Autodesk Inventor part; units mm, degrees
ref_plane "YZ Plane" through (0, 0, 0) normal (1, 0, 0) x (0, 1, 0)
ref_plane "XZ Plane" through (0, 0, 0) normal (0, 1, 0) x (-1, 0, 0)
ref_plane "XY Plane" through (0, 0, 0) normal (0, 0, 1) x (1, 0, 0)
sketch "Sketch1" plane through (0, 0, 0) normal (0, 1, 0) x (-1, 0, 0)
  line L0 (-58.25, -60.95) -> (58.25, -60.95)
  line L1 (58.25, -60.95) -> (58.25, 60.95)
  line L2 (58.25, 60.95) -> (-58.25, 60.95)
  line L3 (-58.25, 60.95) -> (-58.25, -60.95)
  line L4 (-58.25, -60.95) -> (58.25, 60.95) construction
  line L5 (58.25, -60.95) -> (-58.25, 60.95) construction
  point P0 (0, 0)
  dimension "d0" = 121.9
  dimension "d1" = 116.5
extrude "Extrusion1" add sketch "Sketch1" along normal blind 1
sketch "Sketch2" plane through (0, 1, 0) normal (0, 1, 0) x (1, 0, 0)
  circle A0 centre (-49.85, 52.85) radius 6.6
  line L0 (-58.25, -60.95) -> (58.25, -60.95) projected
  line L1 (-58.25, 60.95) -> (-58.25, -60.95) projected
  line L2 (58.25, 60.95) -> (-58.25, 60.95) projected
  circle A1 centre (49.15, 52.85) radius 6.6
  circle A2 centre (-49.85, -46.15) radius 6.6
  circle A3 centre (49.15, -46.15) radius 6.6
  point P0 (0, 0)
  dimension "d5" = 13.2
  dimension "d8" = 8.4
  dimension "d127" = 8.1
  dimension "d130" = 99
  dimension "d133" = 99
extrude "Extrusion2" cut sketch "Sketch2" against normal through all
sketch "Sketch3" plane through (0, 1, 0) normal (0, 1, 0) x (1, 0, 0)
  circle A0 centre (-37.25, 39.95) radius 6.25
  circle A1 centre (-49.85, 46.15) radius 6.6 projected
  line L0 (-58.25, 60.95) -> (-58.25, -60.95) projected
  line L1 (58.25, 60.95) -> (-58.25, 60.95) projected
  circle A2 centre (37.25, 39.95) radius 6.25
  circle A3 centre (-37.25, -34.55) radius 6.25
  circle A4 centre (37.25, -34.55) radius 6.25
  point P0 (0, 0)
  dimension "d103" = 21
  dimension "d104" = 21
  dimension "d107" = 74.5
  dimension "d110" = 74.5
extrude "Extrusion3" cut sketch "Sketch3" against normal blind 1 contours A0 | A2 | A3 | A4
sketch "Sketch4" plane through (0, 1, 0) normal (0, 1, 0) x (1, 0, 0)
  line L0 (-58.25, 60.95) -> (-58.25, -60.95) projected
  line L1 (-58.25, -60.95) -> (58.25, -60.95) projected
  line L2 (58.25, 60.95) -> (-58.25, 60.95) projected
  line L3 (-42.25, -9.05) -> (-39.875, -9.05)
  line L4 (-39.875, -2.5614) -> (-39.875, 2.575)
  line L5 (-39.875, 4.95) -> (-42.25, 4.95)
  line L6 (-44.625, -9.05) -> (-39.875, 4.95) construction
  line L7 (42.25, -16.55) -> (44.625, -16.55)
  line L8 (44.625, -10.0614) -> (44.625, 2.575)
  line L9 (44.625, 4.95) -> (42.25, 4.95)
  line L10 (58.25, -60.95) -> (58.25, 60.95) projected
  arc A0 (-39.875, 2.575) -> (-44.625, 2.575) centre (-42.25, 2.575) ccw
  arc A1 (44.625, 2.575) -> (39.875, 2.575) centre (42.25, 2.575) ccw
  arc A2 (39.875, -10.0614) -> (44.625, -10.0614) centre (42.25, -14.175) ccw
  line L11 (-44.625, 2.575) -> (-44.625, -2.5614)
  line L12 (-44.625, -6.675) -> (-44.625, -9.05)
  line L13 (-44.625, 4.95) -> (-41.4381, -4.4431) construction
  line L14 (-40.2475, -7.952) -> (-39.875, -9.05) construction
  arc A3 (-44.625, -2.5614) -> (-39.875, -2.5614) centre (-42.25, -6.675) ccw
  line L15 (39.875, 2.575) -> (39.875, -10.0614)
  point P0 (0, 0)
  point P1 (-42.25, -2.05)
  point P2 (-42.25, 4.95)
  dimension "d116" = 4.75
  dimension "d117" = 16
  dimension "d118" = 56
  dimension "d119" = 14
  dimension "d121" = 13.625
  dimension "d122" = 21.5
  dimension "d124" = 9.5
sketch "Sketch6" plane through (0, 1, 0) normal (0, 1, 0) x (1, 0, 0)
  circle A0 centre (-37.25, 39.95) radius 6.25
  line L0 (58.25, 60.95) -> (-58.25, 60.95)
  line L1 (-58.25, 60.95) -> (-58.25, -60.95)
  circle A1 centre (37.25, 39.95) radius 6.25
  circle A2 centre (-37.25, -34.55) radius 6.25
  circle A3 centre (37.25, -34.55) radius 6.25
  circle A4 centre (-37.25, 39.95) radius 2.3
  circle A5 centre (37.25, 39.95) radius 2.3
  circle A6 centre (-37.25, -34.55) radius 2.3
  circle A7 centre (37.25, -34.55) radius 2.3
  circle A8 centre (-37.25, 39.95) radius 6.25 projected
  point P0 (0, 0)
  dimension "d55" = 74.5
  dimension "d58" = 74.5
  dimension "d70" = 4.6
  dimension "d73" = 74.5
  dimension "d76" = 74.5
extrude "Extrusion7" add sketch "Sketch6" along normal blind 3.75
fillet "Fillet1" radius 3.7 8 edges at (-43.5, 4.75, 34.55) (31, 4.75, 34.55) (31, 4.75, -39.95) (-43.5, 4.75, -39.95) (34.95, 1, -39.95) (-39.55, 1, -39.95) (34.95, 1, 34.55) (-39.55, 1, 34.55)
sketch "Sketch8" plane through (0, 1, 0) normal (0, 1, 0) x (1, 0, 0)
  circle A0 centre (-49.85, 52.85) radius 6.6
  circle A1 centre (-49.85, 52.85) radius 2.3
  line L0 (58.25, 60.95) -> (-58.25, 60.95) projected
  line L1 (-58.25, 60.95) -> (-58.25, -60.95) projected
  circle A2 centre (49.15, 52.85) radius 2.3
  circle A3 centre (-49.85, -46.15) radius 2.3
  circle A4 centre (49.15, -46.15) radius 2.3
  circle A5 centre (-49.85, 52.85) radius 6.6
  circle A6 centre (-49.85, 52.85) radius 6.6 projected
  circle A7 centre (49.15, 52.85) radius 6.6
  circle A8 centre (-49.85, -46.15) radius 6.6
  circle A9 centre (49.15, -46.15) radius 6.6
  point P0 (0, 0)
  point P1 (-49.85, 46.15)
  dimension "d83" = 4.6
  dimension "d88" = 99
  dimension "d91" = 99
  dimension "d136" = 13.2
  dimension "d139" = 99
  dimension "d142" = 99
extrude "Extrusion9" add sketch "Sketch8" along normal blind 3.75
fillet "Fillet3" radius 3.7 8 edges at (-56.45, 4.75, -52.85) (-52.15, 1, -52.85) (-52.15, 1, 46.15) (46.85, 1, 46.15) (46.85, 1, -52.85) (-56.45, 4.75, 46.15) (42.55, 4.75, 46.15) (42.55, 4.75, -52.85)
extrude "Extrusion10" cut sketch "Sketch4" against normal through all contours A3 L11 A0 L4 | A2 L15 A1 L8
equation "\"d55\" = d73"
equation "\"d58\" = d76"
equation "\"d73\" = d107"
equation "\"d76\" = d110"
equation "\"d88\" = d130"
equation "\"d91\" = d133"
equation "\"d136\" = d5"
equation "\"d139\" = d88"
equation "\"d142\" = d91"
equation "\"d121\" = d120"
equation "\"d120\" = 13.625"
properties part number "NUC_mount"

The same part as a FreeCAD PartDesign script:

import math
import FreeCAD as App
import Part
import Sketcher
Q = App.Units.Quantity


def edges_at(feature, points):
    """Names of the edges that pass closest to the given points."""
    edges = feature.Shape.Edges
    near = lambda p: min(range(len(edges)), key=lambda i: edges[i].distToShape(Part.Vertex(*p))[0])
    return sorted({f"Edge{near(p) + 1}" for p in points})


def add_polygon(sketch, points):
    """Adds a closed chain of lines whose ends are joined by coincident constraints."""
    first, n = sketch.GeometryCount, len(points)
    for a, b in zip(points, points[1:] + points[:1]):
        sketch.addGeometry(Part.LineSegment(App.Vector(*a, 0), App.Vector(*b, 0)), False)
    for i in range(n):
        sketch.addConstraint(Sketcher.Constraint("Coincident", first + i, 2, first + (i + 1) % n, 1))

doc = App.newDocument("Part")
body = doc.addObject("PartDesign::Body", "Body")
body.AllowCompound = True

# Sketch on XZ plane
sketch1 = body.newObject("Sketcher::SketchObject", "Sketch")
sketch1.AttachmentSupport = (doc.getObject("XZ_Plane"), [""])
sketch1.MapMode = "FlatFace"
add_polygon(sketch1, [(58, 61), (58, -61), (-58, -61), (-58, 61)])  # lines 0-3
sketch1.addConstraint([
    Sketcher.Constraint("Vertical", 0),
    Sketcher.Constraint("Horizontal", 1),
    Sketcher.Constraint("Vertical", 2),
    Sketcher.Constraint("Horizontal", 3),
    Sketcher.Constraint("Symmetric", 0, 2, 2, 2, -1, 1),
    Sketcher.Constraint("DistanceX", 1, 2, 1, 1, Q("116.5 mm")),
    Sketcher.Constraint("DistanceY", 0, 2, 0, 1, Q("121.9 mm")),
])
pad1 = body.newObject("PartDesign::Pad", "Pad")
pad1.Profile = sketch1
pad1.Length = 1
pad1.Reversed = True

# Sketch on XZ plane
sketch2 = body.newObject("Sketcher::SketchObject", "Sketch001")
sketch2.AttachmentSupport = (doc.getObject("XZ_Plane"), [""])
sketch2.MapMode = "FlatFace"
sketch2.AttachmentOffset = App.Placement(App.Vector(0, 0, -1), App.Rotation())
sketch2.addGeometry([
    Part.Circle(App.Vector(-50, -53, 0), App.Vector(0, 0, 1), 7),
    Part.Circle(App.Vector(49, -53, 0), App.Vector(0, 0, 1), 7),
    Part.Circle(App.Vector(-50, 46, 0), App.Vector(0, 0, 1), 7),
    Part.Circle(App.Vector(49, 46, 0), App.Vector(0, 0, 1), 7),
], False)
sketch2.addConstraint([
    Sketcher.Constraint("Equal", 0, 1),
    Sketcher.Constraint("Equal", 1, 2),
    Sketcher.Constraint("Equal", 2, 3),
    Sketcher.Constraint("Horizontal", 0, 3, 1, 3),
    Sketcher.Constraint("Horizontal", 2, 3, 3, 3),
    Sketcher.Constraint("Vertical", 0, 3, 2, 3),
    Sketcher.Constraint("Vertical", 1, 3, 3, 3),
    Sketcher.Constraint("Diameter", 0, Q("13.2 mm")),
    Sketcher.Constraint("DistanceX", 0, 3, 1, 3, Q("99 mm")),
    Sketcher.Constraint("DistanceY", 0, 3, 2, 3, Q("99 mm")),
    Sketcher.Constraint("DistanceX", 0, 3, -1, 1, Q("49.85 mm")),
    Sketcher.Constraint("DistanceY", 0, 3, -1, 1, Q("52.85 mm")),
])
pocket1 = body.newObject("PartDesign::Pocket", "Pocket")
pocket1.Profile = sketch2
pocket1.Type = "ThroughAll"
pocket1.Reversed = True

# Sketch on XZ plane
sketch3 = body.newObject("Sketcher::SketchObject", "Sketch002")
sketch3.AttachmentSupport = (doc.getObject("XZ_Plane"), [""])
sketch3.MapMode = "FlatFace"
sketch3.AttachmentOffset = App.Placement(App.Vector(0, 0, -1), App.Rotation())
sketch3.addGeometry([
    Part.Circle(App.Vector(-37, -40, 0), App.Vector(0, 0, 1), 6),
    Part.Circle(App.Vector(37, -40, 0), App.Vector(0, 0, 1), 6),
    Part.Circle(App.Vector(-37, 35, 0), App.Vector(0, 0, 1), 6),
    Part.Circle(App.Vector(37, 35, 0), App.Vector(0, 0, 1), 6),
], False)
sketch3.addConstraint([
    Sketcher.Constraint("Equal", 0, 1),
    Sketcher.Constraint("Equal", 1, 2),
    Sketcher.Constraint("Equal", 2, 3),
    Sketcher.Constraint("Symmetric", 0, 3, 1, 3, -2),
    Sketcher.Constraint("Symmetric", 2, 3, 3, 3, -2),
    Sketcher.Constraint("Vertical", 0, 3, 2, 3),
    Sketcher.Constraint("Diameter", 0, Q("12.5 mm")),
    Sketcher.Constraint("DistanceX", 0, 3, 1, 3, Q("74.5 mm")),
    Sketcher.Constraint("DistanceY", 0, 3, 2, 3, Q("74.5 mm")),
    Sketcher.Constraint("DistanceY", 0, 3, -1, 1, Q("39.95 mm")),
])
pocket2 = body.newObject("PartDesign::Pocket", "Pocket001")
pocket2.Profile = sketch3
pocket2.Length = 1
pocket2.Reversed = True

# Sketch on XZ plane
sketch4 = body.newObject("Sketcher::SketchObject", "Sketch003")
sketch4.AttachmentSupport = (doc.getObject("XZ_Plane"), [""])
sketch4.MapMode = "FlatFace"
sketch4.AttachmentOffset = App.Placement(App.Vector(0, 0, -1), App.Rotation())
sketch4.addGeometry([
    Part.Circle(App.Vector(-37.2, -40, 0), App.Vector(0, 0, 1), 6.2),  # 0
    Part.Circle(App.Vector(-37.2, -40, 0), App.Vector(0, 0, 1), 2.3),  # 1
    Part.Circle(App.Vector(37.2, -40, 0), App.Vector(0, 0, 1), 6.2),  # 2
    Part.Circle(App.Vector(37.2, -40, 0), App.Vector(0, 0, 1), 2.3),  # 3
    Part.Circle(App.Vector(-37.2, 34.5, 0), App.Vector(0, 0, 1), 6.2),  # 4
    Part.Circle(App.Vector(-37.2, 34.5, 0), App.Vector(0, 0, 1), 2.3),  # 5
    Part.Circle(App.Vector(37.2, 34.5, 0), App.Vector(0, 0, 1), 6.2),  # 6
    Part.Circle(App.Vector(37.2, 34.5, 0), App.Vector(0, 0, 1), 2.3),  # 7
], False)
sketch4.addConstraint([
    Sketcher.Constraint("Coincident", 1, 3, 0, 3),
    Sketcher.Constraint("Coincident", 3, 3, 2, 3),
    Sketcher.Constraint("Coincident", 5, 3, 4, 3),
    Sketcher.Constraint("Coincident", 7, 3, 6, 3),
    Sketcher.Constraint("Equal", 0, 2),
    Sketcher.Constraint("Equal", 1, 3),
    Sketcher.Constraint("Equal", 2, 4),
    Sketcher.Constraint("Equal", 3, 5),
    Sketcher.Constraint("Equal", 4, 6),
    Sketcher.Constraint("Equal", 5, 7),
    Sketcher.Constraint("Symmetric", 0, 3, 2, 3, -2),
    Sketcher.Constraint("Symmetric", 4, 3, 6, 3, -2),
    Sketcher.Constraint("Vertical", 1, 3, 4, 3),
    Sketcher.Constraint("Diameter", 1, Q("4.6 mm")),
    Sketcher.Constraint("Diameter", 0, Q("12.5 mm")),
    Sketcher.Constraint("DistanceX", 0, 3, 2, 3, Q("74.5 mm")),
    Sketcher.Constraint("DistanceY", 0, 3, 4, 3, Q("74.5 mm")),
    Sketcher.Constraint("DistanceY", 0, 3, -1, 1, Q("39.95 mm")),
])
pad2 = body.newObject("PartDesign::Pad", "Pad001")
pad2.Profile = sketch4
pad2.Length = 3.75
pad2.Reversed = True
doc.recompute()

fillet = body.newObject("PartDesign::Fillet", "Fillet")
fillet.Base = (pad2, edges_at(pad2, [
    (-43.5, 4.75, 34.55),
    (31, 4.75, 34.55),
    (31, 4.75, -39.95),
    (-43.5, 4.75, -39.95),
    (34.95, 1, -39.95),
    (-39.55, 1, -39.95),
    (34.95, 1, 34.55),
    (-39.55, 1, 34.55),
]))
fillet.Radius = 3.7

# Sketch on XZ plane
sketch5 = body.newObject("Sketcher::SketchObject", "Sketch004")
sketch5.AttachmentSupport = (doc.getObject("XZ_Plane"), [""])
sketch5.MapMode = "FlatFace"
sketch5.AttachmentOffset = App.Placement(App.Vector(0, 0, -1), App.Rotation())
sketch5.addGeometry([
    Part.Circle(App.Vector(-49.9, -52.9, 0), App.Vector(0, 0, 1), 6.6),  # 0
    Part.Circle(App.Vector(-49.9, -52.9, 0), App.Vector(0, 0, 1), 2.3),  # 1
    Part.Circle(App.Vector(49.1, -52.9, 0), App.Vector(0, 0, 1), 6.6),  # 2
    Part.Circle(App.Vector(49.1, -52.9, 0), App.Vector(0, 0, 1), 2.3),  # 3
    Part.Circle(App.Vector(-49.9, 46.1, 0), App.Vector(0, 0, 1), 6.6),  # 4
    Part.Circle(App.Vector(-49.9, 46.1, 0), App.Vector(0, 0, 1), 2.3),  # 5
    Part.Circle(App.Vector(49.1, 46.1, 0), App.Vector(0, 0, 1), 6.6),  # 6
    Part.Circle(App.Vector(49.1, 46.1, 0), App.Vector(0, 0, 1), 2.3),  # 7
], False)
sketch5.addConstraint([
    Sketcher.Constraint("Coincident", 1, 3, 0, 3),
    Sketcher.Constraint("Coincident", 3, 3, 2, 3),
    Sketcher.Constraint("Coincident", 5, 3, 4, 3),
    Sketcher.Constraint("Coincident", 7, 3, 6, 3),
    Sketcher.Constraint("Equal", 0, 2),
    Sketcher.Constraint("Equal", 1, 3),
    Sketcher.Constraint("Equal", 2, 4),
    Sketcher.Constraint("Equal", 3, 5),
    Sketcher.Constraint("Equal", 4, 6),
    Sketcher.Constraint("Equal", 5, 7),
    Sketcher.Constraint("Horizontal", 1, 3, 2, 3),
    Sketcher.Constraint("Horizontal", 5, 3, 6, 3),
    Sketcher.Constraint("Vertical", 1, 3, 4, 3),
    Sketcher.Constraint("Vertical", 3, 3, 6, 3),
    Sketcher.Constraint("Diameter", 0, Q("13.2 mm")),
    Sketcher.Constraint("Diameter", 1, Q("4.6 mm")),
    Sketcher.Constraint("DistanceX", 0, 3, 2, 3, Q("99 mm")),
    Sketcher.Constraint("DistanceY", 0, 3, 4, 3, Q("99 mm")),
    Sketcher.Constraint("DistanceX", 0, 3, -1, 1, Q("49.85 mm")),
    Sketcher.Constraint("DistanceY", 0, 3, -1, 1, Q("52.85 mm")),
])
pad3 = body.newObject("PartDesign::Pad", "Pad002")
pad3.Profile = sketch5
pad3.Length = 3.75
pad3.Reversed = True
doc.recompute()

fillet2 = body.newObject("PartDesign::Fillet", "Fillet001")
fillet2.Base = (pad3, edges_at(pad3, [
    (-56.45, 4.75, -52.85),
    (-52.15, 1, -52.85),
    (-52.15, 1, 46.15),
    (46.85, 1, 46.15),
    (46.85, 1, -52.85),
    (-56.45, 4.75, 46.15),
    (42.55, 4.75, 46.15),
    (42.55, 4.75, -52.85),
]))
fillet2.Radius = 3.7

# Sketch on XZ plane
sketch6 = body.newObject("Sketcher::SketchObject", "Sketch005")
sketch6.AttachmentSupport = (doc.getObject("XZ_Plane"), [""])
sketch6.MapMode = "FlatFace"
sketch6.AttachmentOffset = App.Placement(App.Vector(0, 0, -1), App.Rotation())
sketch6.addGeometry([
    Part.ArcOfCircle(Part.Circle(App.Vector(-42.2, 6.7, 0), App.Vector(0, 0, 1), 4.7), math.radians(-60), math.radians(240)),  # 0
    Part.LineSegment(App.Vector(-39.9, 2.6, 0), App.Vector(-39.9, -2.6, 0)),  # 1
    Part.ArcOfCircle(Part.Circle(App.Vector(-42.2, -2.6, 0), App.Vector(0, 0, 1), 2.4), math.radians(180), math.radians(360)),  # 2
    Part.LineSegment(App.Vector(-44.6, -2.6, 0), App.Vector(-44.6, 2.6, 0)),  # 3
    Part.ArcOfCircle(Part.Circle(App.Vector(42.2, 14.2, 0), App.Vector(0, 0, 1), 4.7), math.radians(-60), math.radians(240)),  # 4
    Part.LineSegment(App.Vector(44.6, 10.1, 0), App.Vector(44.6, -2.6, 0)),  # 5
    Part.ArcOfCircle(Part.Circle(App.Vector(42.2, -2.6, 0), App.Vector(0, 0, 1), 2.4), math.radians(180), math.radians(360)),  # 6
    Part.LineSegment(App.Vector(39.9, -2.6, 0), App.Vector(39.9, 10.1, 0)),  # 7
], False)
sketch6.addConstraint([
    Sketcher.Constraint("Coincident", 0, 1, 1, 1),
    Sketcher.Constraint("Tangent", 1, 2, 2, 2),
    Sketcher.Constraint("Tangent", 2, 1, 3, 1),
    Sketcher.Constraint("Coincident", 3, 2, 0, 2),
    Sketcher.Constraint("Coincident", 4, 1, 5, 1),
    Sketcher.Constraint("Tangent", 5, 2, 6, 2),
    Sketcher.Constraint("Tangent", 6, 1, 7, 1),
    Sketcher.Constraint("Coincident", 7, 2, 4, 2),
    Sketcher.Constraint("Vertical", 1),
    Sketcher.Constraint("Vertical", 3),
    Sketcher.Constraint("Vertical", 5),
    Sketcher.Constraint("Vertical", 7),
    Sketcher.Constraint("Equal", 0, 4),
    Sketcher.Constraint("Equal", 2, 6),
    Sketcher.Constraint("Symmetric", 2, 3, 6, 3, -2),
    Sketcher.Constraint("Horizontal", 0, 1, 3, 2),
    Sketcher.Constraint("Horizontal", 4, 1, 7, 2),
    Sketcher.Constraint("Radius", 0, Q("4.75 mm")),
    Sketcher.Constraint("Radius", 2, Q("2.375 mm")),
    Sketcher.Constraint("DistanceX", 0, 3, 4, 3, Q("84.5 mm")),
    Sketcher.Constraint("DistanceY", 0, 3, 4, 3, Q("7.5 mm")),
    Sketcher.Constraint("DistanceY", 2, 3, 0, 3, Q("9.25 mm")),
    Sketcher.Constraint("DistanceY", -1, 1, 0, 3, Q("6.675 mm")),
])
pocket3 = body.newObject("PartDesign::Pocket", "Pocket002")
pocket3.Profile = sketch6
pocket3.Type = "ThroughAll"
pocket3.Reversed = True

doc.recompute()
